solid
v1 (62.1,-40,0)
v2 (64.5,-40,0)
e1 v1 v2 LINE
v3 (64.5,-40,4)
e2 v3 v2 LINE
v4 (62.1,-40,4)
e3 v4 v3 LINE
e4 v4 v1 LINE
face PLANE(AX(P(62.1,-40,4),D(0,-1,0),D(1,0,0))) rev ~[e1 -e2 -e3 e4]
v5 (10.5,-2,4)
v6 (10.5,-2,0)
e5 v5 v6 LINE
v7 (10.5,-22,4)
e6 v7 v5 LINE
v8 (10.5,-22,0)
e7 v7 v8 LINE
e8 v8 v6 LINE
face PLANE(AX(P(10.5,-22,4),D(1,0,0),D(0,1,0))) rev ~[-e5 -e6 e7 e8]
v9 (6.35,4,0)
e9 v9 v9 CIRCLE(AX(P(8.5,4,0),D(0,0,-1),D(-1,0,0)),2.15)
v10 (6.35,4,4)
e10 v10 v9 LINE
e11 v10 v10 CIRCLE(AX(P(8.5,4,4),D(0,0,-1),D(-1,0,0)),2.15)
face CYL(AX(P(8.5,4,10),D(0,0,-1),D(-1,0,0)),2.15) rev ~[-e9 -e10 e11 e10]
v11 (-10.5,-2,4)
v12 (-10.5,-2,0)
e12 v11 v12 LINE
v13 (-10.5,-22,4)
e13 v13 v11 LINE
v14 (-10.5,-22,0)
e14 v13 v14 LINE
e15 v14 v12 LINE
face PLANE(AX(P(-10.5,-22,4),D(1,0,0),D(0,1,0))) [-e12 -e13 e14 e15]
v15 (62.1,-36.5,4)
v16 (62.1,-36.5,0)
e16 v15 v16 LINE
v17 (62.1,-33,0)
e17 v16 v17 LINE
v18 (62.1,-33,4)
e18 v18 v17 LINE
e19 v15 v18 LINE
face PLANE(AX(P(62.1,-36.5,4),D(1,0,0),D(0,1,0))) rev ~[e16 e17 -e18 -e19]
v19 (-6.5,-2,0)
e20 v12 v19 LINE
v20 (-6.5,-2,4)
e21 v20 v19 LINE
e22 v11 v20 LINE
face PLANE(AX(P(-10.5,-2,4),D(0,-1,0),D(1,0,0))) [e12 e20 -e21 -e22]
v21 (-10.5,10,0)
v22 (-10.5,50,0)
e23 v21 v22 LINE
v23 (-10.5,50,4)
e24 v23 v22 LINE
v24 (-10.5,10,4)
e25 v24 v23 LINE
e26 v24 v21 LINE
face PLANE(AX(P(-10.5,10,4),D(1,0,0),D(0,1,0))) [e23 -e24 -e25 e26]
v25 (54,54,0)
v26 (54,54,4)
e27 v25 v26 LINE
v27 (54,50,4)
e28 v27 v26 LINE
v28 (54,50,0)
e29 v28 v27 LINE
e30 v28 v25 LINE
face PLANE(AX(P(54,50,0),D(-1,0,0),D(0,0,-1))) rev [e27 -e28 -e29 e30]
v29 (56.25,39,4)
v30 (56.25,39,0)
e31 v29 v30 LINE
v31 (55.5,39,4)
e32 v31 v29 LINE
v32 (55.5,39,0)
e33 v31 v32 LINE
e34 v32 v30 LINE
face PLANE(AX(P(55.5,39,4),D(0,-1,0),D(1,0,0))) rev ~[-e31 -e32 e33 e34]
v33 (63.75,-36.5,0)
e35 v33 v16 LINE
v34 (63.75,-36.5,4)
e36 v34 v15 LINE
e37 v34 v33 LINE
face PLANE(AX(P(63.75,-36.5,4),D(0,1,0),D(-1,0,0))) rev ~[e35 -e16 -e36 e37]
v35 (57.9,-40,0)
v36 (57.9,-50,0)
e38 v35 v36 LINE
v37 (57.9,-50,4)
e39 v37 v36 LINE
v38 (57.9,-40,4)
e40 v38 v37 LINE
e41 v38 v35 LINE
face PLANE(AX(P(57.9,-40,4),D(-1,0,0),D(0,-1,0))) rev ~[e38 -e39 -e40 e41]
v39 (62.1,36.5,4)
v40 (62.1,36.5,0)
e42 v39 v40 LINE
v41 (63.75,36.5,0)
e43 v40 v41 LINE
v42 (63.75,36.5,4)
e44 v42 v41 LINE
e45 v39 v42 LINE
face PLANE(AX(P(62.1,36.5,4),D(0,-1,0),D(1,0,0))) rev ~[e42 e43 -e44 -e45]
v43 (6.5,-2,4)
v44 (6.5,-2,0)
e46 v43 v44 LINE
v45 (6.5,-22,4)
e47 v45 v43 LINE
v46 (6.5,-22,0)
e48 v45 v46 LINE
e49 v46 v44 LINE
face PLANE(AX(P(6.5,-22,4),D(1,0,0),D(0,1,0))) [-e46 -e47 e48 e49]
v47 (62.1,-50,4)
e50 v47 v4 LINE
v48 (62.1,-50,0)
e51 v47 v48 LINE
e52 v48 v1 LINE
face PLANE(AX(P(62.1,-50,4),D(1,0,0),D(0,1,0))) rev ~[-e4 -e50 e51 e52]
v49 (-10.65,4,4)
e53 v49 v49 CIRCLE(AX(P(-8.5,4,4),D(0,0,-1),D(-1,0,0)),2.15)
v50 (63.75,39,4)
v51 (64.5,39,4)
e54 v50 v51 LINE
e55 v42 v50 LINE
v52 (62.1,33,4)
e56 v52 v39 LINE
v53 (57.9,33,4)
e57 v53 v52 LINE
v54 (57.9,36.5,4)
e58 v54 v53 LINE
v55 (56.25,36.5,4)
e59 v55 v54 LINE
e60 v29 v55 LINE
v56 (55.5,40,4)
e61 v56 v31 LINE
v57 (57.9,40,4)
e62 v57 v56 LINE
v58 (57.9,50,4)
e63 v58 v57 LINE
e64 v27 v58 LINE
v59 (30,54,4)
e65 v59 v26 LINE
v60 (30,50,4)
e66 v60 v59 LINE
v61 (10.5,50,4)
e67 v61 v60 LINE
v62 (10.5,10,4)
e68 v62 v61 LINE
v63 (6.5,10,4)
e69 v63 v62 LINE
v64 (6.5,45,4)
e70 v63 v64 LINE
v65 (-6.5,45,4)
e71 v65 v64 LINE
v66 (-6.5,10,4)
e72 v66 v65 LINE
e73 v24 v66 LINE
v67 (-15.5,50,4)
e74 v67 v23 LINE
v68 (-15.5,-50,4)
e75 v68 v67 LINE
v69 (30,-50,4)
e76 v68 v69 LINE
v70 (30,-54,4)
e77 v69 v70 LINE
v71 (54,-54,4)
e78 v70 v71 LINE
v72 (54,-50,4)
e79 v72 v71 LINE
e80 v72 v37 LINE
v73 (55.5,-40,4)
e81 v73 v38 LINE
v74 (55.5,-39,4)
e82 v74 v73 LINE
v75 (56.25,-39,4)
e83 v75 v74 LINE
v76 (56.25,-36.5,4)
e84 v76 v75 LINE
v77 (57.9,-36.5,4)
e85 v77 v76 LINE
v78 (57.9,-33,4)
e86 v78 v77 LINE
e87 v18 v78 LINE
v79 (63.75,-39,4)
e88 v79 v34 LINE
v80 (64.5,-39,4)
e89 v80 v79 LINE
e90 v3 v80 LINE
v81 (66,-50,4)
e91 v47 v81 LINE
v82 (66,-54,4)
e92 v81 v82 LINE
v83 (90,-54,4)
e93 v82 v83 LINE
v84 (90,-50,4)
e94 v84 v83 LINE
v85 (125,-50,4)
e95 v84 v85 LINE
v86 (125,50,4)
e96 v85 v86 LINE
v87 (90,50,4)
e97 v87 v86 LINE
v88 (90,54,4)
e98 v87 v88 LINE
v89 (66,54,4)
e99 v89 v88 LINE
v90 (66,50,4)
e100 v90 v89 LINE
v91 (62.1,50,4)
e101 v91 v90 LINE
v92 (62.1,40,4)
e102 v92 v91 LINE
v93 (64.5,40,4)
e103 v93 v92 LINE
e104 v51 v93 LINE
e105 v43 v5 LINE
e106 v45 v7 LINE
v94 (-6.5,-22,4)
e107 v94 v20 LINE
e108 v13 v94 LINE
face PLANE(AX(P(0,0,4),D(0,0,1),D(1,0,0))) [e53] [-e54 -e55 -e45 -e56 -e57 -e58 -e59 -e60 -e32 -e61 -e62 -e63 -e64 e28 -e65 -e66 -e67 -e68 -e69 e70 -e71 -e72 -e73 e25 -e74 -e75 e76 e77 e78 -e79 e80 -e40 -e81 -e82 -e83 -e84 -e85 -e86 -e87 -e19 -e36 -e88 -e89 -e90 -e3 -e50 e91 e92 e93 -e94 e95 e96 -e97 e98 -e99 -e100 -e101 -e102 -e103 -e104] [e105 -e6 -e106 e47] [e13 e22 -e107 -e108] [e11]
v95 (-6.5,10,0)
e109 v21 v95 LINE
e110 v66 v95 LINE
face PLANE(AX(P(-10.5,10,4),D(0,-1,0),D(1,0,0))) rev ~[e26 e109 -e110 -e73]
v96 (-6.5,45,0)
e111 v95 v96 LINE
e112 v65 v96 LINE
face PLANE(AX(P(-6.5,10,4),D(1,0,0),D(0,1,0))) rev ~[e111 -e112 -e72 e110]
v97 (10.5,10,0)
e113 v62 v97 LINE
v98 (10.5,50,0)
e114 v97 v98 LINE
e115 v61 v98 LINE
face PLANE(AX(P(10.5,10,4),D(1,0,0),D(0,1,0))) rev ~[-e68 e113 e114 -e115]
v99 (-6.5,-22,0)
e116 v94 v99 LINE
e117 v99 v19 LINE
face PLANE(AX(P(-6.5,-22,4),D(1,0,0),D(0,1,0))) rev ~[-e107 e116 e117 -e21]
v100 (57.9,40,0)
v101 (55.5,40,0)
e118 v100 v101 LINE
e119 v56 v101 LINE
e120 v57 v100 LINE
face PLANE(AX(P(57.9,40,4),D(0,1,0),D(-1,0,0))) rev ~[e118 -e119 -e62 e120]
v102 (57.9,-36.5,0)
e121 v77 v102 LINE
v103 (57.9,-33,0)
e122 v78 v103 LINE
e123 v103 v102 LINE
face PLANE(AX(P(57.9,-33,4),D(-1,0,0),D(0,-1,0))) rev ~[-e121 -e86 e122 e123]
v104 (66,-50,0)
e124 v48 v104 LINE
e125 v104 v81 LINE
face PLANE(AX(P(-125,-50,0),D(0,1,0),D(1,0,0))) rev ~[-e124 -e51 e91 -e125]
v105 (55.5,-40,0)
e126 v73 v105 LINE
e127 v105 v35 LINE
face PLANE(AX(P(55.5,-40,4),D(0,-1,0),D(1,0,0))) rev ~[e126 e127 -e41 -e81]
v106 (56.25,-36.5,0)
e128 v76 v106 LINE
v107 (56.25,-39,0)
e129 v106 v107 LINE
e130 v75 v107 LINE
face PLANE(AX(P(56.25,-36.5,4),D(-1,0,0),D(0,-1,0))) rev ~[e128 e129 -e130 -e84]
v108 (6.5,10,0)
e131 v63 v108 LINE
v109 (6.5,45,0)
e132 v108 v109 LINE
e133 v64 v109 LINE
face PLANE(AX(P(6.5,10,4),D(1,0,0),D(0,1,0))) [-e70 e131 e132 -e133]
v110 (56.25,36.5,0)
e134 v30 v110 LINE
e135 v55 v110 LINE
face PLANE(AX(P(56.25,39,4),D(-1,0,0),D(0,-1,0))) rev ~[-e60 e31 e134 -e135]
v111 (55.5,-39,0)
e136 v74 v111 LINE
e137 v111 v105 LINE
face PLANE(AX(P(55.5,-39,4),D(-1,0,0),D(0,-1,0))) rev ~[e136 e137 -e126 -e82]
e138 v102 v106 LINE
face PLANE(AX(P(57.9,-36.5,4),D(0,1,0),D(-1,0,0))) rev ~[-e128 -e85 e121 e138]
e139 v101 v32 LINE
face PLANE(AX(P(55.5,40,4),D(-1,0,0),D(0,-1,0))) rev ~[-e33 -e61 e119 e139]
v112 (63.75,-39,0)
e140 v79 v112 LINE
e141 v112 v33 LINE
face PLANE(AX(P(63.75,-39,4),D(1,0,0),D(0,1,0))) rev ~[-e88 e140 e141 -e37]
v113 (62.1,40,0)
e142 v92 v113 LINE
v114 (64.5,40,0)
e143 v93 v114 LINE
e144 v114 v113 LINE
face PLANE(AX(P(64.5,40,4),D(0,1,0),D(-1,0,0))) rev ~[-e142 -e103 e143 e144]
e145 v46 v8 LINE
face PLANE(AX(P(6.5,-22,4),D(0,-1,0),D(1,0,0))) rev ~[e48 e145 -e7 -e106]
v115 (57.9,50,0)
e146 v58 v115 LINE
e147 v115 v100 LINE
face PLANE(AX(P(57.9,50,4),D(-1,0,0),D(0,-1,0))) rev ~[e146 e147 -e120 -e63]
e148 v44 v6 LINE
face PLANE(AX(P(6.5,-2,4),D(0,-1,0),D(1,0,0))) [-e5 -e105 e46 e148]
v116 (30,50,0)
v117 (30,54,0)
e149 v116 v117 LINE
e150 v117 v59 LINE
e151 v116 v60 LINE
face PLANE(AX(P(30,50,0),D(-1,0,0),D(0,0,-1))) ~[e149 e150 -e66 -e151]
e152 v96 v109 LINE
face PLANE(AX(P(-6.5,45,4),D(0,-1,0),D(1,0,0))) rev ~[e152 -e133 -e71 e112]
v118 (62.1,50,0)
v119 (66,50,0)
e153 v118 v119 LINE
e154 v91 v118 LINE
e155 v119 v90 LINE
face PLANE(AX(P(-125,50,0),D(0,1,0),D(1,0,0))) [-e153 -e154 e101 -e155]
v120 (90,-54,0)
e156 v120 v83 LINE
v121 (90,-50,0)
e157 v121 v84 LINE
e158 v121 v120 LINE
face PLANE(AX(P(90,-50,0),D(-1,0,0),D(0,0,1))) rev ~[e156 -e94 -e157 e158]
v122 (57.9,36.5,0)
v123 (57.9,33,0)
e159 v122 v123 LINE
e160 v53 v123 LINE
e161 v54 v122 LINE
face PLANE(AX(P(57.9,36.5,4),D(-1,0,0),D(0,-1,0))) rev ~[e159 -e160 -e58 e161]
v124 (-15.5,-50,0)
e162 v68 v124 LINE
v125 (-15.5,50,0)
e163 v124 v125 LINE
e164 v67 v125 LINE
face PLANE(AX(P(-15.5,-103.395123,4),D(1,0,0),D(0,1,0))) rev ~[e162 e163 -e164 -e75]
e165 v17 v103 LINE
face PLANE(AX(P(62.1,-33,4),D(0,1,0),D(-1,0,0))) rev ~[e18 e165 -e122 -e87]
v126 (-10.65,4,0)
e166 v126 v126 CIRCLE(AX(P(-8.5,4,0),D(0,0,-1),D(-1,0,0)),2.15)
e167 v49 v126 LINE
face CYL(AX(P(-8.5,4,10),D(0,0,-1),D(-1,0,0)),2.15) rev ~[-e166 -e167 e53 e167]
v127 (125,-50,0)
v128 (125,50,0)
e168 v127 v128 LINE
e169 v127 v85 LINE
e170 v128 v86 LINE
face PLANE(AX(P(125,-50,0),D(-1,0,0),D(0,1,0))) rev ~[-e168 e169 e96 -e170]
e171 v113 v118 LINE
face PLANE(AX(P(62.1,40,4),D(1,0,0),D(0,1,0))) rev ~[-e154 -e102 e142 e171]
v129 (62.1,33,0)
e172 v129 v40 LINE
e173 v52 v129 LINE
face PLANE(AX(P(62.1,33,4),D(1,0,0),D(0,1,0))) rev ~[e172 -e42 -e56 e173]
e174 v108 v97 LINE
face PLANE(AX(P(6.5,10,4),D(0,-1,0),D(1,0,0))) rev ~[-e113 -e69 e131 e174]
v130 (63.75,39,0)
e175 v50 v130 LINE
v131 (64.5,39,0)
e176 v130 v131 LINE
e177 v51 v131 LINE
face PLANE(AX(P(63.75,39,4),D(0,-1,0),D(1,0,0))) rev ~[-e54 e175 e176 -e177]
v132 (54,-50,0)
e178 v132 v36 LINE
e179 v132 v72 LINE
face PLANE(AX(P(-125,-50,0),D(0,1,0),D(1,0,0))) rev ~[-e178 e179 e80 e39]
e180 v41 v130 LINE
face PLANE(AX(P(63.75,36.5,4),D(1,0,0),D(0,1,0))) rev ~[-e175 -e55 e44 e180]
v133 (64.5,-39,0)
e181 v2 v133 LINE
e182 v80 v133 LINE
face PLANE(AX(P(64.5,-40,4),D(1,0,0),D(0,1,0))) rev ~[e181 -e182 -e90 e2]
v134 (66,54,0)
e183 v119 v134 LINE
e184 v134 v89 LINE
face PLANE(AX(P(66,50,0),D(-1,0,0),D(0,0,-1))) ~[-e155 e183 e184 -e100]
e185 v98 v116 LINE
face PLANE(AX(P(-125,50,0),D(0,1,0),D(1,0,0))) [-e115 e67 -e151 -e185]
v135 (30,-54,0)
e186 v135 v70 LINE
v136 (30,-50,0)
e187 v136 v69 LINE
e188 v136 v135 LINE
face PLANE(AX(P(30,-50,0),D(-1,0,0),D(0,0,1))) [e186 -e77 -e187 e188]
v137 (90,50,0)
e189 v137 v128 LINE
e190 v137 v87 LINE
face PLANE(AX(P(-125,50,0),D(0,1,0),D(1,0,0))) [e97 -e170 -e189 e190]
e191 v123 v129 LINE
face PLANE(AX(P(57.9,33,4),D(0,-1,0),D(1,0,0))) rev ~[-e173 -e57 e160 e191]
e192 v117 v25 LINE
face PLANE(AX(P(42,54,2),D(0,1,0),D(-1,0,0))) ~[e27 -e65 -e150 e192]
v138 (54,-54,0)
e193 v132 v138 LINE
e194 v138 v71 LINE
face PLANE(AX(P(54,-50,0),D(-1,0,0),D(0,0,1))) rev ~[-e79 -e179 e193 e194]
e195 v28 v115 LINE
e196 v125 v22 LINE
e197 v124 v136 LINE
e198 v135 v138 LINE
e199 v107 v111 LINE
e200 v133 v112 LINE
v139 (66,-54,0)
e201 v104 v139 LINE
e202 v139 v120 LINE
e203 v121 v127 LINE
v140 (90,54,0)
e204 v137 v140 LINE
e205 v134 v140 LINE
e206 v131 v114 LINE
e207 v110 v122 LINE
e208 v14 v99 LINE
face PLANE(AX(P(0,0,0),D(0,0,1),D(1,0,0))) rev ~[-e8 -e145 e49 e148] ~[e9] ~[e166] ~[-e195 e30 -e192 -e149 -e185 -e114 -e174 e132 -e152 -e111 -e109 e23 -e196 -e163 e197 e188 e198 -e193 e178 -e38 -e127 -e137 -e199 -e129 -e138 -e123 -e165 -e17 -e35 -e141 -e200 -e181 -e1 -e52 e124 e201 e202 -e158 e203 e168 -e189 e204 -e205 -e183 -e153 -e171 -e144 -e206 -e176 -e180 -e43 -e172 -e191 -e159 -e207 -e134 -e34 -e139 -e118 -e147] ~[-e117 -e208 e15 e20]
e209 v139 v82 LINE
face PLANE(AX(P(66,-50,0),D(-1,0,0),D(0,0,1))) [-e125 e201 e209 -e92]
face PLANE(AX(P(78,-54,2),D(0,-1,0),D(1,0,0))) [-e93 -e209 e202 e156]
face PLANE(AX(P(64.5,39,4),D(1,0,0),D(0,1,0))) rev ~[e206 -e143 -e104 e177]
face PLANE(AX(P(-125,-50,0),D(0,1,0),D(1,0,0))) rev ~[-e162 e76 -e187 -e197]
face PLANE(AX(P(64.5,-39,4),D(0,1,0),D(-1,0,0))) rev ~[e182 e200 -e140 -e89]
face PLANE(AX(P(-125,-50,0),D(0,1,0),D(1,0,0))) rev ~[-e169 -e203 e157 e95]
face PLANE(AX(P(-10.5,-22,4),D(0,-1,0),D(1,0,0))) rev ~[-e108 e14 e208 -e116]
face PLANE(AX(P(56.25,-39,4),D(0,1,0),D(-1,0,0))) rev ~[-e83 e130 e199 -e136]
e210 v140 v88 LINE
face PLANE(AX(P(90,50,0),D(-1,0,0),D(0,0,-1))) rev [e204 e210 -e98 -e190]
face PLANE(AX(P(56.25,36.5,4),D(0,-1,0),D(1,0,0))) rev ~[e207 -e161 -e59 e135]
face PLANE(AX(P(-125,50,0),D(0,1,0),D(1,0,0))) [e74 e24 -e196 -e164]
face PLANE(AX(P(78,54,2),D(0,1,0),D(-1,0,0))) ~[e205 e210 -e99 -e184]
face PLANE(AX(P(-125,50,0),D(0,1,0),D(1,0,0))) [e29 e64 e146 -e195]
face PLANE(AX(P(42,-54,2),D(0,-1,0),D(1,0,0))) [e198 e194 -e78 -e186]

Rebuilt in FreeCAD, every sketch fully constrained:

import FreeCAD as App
import Part
import Sketcher

V = App.Vector
Q = App.Units.Quantity

doc = App.newDocument("Part")
body = doc.addObject("PartDesign::Body", "Body")

sketch1 = body.newObject("Sketcher::SketchObject", "Sketch")
sketch1.AttachmentSupport = (doc.getObject("XY_Plane"), [""])
sketch1.MapMode = "FlatFace"
sketch1.addGeometry([
    Part.LineSegment(V(-125, 50, 0), V(-125, -50, 0)),
    Part.LineSegment(V(-125, -50, 0), V(125, -50, 0)),
    Part.LineSegment(V(125, -50, 0), V(125, 50, 0)),
    Part.LineSegment(V(125, 50, 0), V(-125, 50, 0)),
], False)
sketch1.addConstraint([
    Sketcher.Constraint("Coincident", 0, 2, 1, 1),
    Sketcher.Constraint("Coincident", 1, 2, 2, 1),
    Sketcher.Constraint("Coincident", 2, 2, 3, 1),
    Sketcher.Constraint("Coincident", 3, 2, 0, 1),
    Sketcher.Constraint("Vertical", 0),
    Sketcher.Constraint("Horizontal", 1),
    Sketcher.Constraint("Vertical", 2),
    Sketcher.Constraint("Horizontal", 3),
    Sketcher.Constraint("Symmetric", 0, 2, 2, 2, -1, 1),
    Sketcher.Constraint("DistanceX", 1, 1, 1, 2, Q("250 mm")),
    Sketcher.Constraint("DistanceY", 0, 2, 0, 1, Q("100 mm")),
])
pad1 = body.newObject("PartDesign::Pad", "Pad")
pad1.Profile = sketch1
pad1.Length = 4

sketch2 = body.newObject("Sketcher::SketchObject", "Sketch001")
sketch2.AttachmentSupport = (doc.getObject("XZ_Plane"), [""])
sketch2.MapMode = "FlatFace"
sketch2.AttachmentOffset = App.Placement(V(0, 0, 50), App.Rotation())
sketch2.addGeometry([
    Part.LineSegment(V(-90, 4, 0), V(-90, 0, 0)),
    Part.LineSegment(V(-90, 0, 0), V(-66, 0, 0)),
    Part.LineSegment(V(-66, 0, 0), V(-66, 4, 0)),
    Part.LineSegment(V(-66, 4, 0), V(-90, 4, 0)),
    Part.LineSegment(V(-54, 4, 0), V(-54, 0, 0)),
    Part.LineSegment(V(-54, 0, 0), V(-30, 0, 0)),
    Part.LineSegment(V(-30, 0, 0), V(-30, 4, 0)),
    Part.LineSegment(V(-30, 4, 0), V(-54, 4, 0)),
    Part.LineSegment(V(30, 4, 0), V(30, 0, 0)),
    Part.LineSegment(V(30, 0, 0), V(54, 0, 0)),
    Part.LineSegment(V(54, 0, 0), V(54, 4, 0)),
    Part.LineSegment(V(54, 4, 0), V(30, 4, 0)),
    Part.LineSegment(V(66, 4, 0), V(66, 0, 0)),
    Part.LineSegment(V(66, 0, 0), V(90, 0, 0)),
    Part.LineSegment(V(90, 0, 0), V(90, 4, 0)),
    Part.LineSegment(V(90, 4, 0), V(66, 4, 0)),
], False)
sketch2.addConstraint([
    Sketcher.Constraint("Coincident", 0, 2, 1, 1),
    Sketcher.Constraint("Coincident", 1, 2, 2, 1),
    Sketcher.Constraint("Coincident", 2, 2, 3, 1),
    Sketcher.Constraint("Coincident", 3, 2, 0, 1),
    Sketcher.Constraint("Coincident", 4, 2, 5, 1),
    Sketcher.Constraint("Coincident", 5, 2, 6, 1),
    Sketcher.Constraint("Coincident", 6, 2, 7, 1),
    Sketcher.Constraint("Coincident", 7, 2, 4, 1),
    Sketcher.Constraint("Coincident", 8, 2, 9, 1),
    Sketcher.Constraint("Coincident", 9, 2, 10, 1),
    Sketcher.Constraint("Coincident", 10, 2, 11, 1),
    Sketcher.Constraint("Coincident", 11, 2, 8, 1),
    Sketcher.Constraint("Coincident", 12, 2, 13, 1),
    Sketcher.Constraint("Coincident", 13, 2, 14, 1),
    Sketcher.Constraint("Coincident", 14, 2, 15, 1),
    Sketcher.Constraint("Coincident", 15, 2, 12, 1),
    Sketcher.Constraint("Vertical", 0),
    Sketcher.Constraint("Horizontal", 1),
    Sketcher.Constraint("Vertical", 2),
    Sketcher.Constraint("Horizontal", 3),
    Sketcher.Constraint("Vertical", 4),
    Sketcher.Constraint("Horizontal", 5),
    Sketcher.Constraint("Vertical", 6),
    Sketcher.Constraint("Horizontal", 7),
    Sketcher.Constraint("Vertical", 8),
    Sketcher.Constraint("Horizontal", 9),
    Sketcher.Constraint("Vertical", 10),
    Sketcher.Constraint("Horizontal", 11),
    Sketcher.Constraint("Vertical", 12),
    Sketcher.Constraint("Horizontal", 13),
    Sketcher.Constraint("Vertical", 14),
    Sketcher.Constraint("Horizontal", 15),
    Sketcher.Constraint("Symmetric", 5, 2, 8, 2, -1, 1),
    Sketcher.Constraint("Symmetric", 1, 2, 12, 2, -1, 1),
    Sketcher.Constraint("Symmetric", 4, 2, 9, 2, -2),
    Sketcher.Constraint("Symmetric", 0, 2, 13, 2, -2),
    Sketcher.Constraint("Horizontal", 3, 2, 6, 2),
    Sketcher.Constraint("Horizontal", 7, 2, 10, 2),
    Sketcher.Constraint("Horizontal", 11, 2, 14, 2),
    Sketcher.Constraint("Equal", 3, 5),
    Sketcher.Constraint("DistanceX", 1, 1, 1, 2, Q("24 mm")),
    Sketcher.Constraint("DistanceY", 0, 2, 0, 1, Q("4 mm")),
    Sketcher.Constraint("DistanceX", 0, 2, -1, 1, Q("90 mm")),
    Sketcher.Constraint("DistanceX", 4, 2, -1, 1, Q("54 mm")),
])
pad2 = body.newObject("PartDesign::Pad", "Pad001")
pad2.Profile = sketch2
pad2.Length = 4

sketch3 = body.newObject("Sketcher::SketchObject", "Sketch002")
sketch3.AttachmentSupport = (doc.getObject("XY_Plane"), [""])
sketch3.MapMode = "FlatFace"
sketch3.AttachmentOffset = App.Placement(V(0, 0, 4), App.Rotation())
sketch3.addGeometry([
    Part.LineSegment(V(-10.5, 50, 0), V(-10.5, 10, 0)),
    Part.LineSegment(V(-10.5, 10, 0), V(-6.5, 10, 0)),
    Part.LineSegment(V(-6.5, 10, 0), V(-6.5, 50, 0)),
    Part.LineSegment(V(-6.5, 50, 0), V(-10.5, 50, 0)),
    Part.LineSegment(V(-10.5, -2, 0), V(-10.5, -22, 0)),
    Part.LineSegment(V(-10.5, -22, 0), V(-6.5, -22, 0)),
    Part.LineSegment(V(-6.5, -22, 0), V(-6.5, -2, 0)),
    Part.LineSegment(V(-6.5, -2, 0), V(-10.5, -2, 0)),
    Part.LineSegment(V(6.5, -2, 0), V(6.5, -22, 0)),
    Part.LineSegment(V(6.5, -22, 0), V(10.5, -22, 0)),
    Part.LineSegment(V(10.5, -22, 0), V(10.5, -2, 0)),
    Part.LineSegment(V(10.5, -2, 0), V(6.5, -2, 0)),
    Part.LineSegment(V(6.5, 50, 0), V(6.5, 10, 0)),
    Part.LineSegment(V(6.5, 10, 0), V(10.5, 10, 0)),
    Part.LineSegment(V(10.5, 10, 0), V(10.5, 50, 0)),
    Part.LineSegment(V(10.5, 50, 0), V(6.5, 50, 0)),
], False)
sketch3.addConstraint([
    Sketcher.Constraint("Coincident", 0, 2, 1, 1),
    Sketcher.Constraint("Coincident", 1, 2, 2, 1),
    Sketcher.Constraint("Coincident", 2, 2, 3, 1),
    Sketcher.Constraint("Coincident", 3, 2, 0, 1),
    Sketcher.Constraint("Coincident", 4, 2, 5, 1),
    Sketcher.Constraint("Coincident", 5, 2, 6, 1),
    Sketcher.Constraint("Coincident", 6, 2, 7, 1),
    Sketcher.Constraint("Coincident", 7, 2, 4, 1),
    Sketcher.Constraint("Coincident", 8, 2, 9, 1),
    Sketcher.Constraint("Coincident", 9, 2, 10, 1),
    Sketcher.Constraint("Coincident", 10, 2, 11, 1),
    Sketcher.Constraint("Coincident", 11, 2, 8, 1),
    Sketcher.Constraint("Coincident", 12, 2, 13, 1),
    Sketcher.Constraint("Coincident", 13, 2, 14, 1),
    Sketcher.Constraint("Coincident", 14, 2, 15, 1),
    Sketcher.Constraint("Coincident", 15, 2, 12, 1),
    Sketcher.Constraint("Vertical", 0),
    Sketcher.Constraint("Horizontal", 1),
    Sketcher.Constraint("Vertical", 2),
    Sketcher.Constraint("Horizontal", 3),
    Sketcher.Constraint("Vertical", 4),
    Sketcher.Constraint("Horizontal", 5),
    Sketcher.Constraint("Vertical", 6),
    Sketcher.Constraint("Horizontal", 7),
    Sketcher.Constraint("Vertical", 8),
    Sketcher.Constraint("Horizontal", 9),
    Sketcher.Constraint("Vertical", 10),
    Sketcher.Constraint("Horizontal", 11),
    Sketcher.Constraint("Vertical", 12),
    Sketcher.Constraint("Horizontal", 13),
    Sketcher.Constraint("Vertical", 14),
    Sketcher.Constraint("Horizontal", 15),
    Sketcher.Constraint("Symmetric", 5, 2, 8, 2, -2),
    Sketcher.Constraint("Symmetric", 7, 2, 10, 2, -2),
    Sketcher.Constraint("Symmetric", 1, 2, 12, 2, -2),
    Sketcher.Constraint("Symmetric", 3, 2, 14, 2, -2),
    Sketcher.Constraint("Vertical", 3, 2, 4, 2),
    Sketcher.Constraint("Vertical", 2, 2, 5, 2),
    Sketcher.Constraint("DistanceX", 1, 1, 1, 2, Q("4 mm")),
    Sketcher.Constraint("DistanceY", 0, 2, 0, 1, Q("40 mm")),
    Sketcher.Constraint("DistanceY", 4, 2, 4, 1, Q("20 mm")),
    Sketcher.Constraint("DistanceY", -1, 1, 0, 2, Q("10 mm")),
    Sketcher.Constraint("DistanceY", 4, 2, -1, 1, Q("22 mm")),
    Sketcher.Constraint("DistanceX", 5, 2, 8, 2, Q("13 mm")),
])
pocket1 = body.newObject("PartDesign::Pocket", "Pocket")
pocket1.Profile = sketch3
pocket1.Type = "ThroughAll"
doc.recompute()

mirrored = body.newObject("PartDesign::Mirrored", "Mirrored")
mirrored.Originals = [pad2]
mirrored.MirrorPlane = (doc.getObject("XZ_Plane"), [""])
body.Tip = mirrored

sketch4 = body.newObject("Sketcher::SketchObject", "Sketch003")
sketch4.AttachmentSupport = (doc.getObject("XY_Plane"), [""])
sketch4.MapMode = "FlatFace"
sketch4.AttachmentOffset = App.Placement(V(0, 0, 4), App.Rotation())
sketch4.addGeometry([
    Part.Circle(V(-8.5, 4, 0), V(0, 0, 1), 2.1),
    Part.Circle(V(8.5, 4, 0), V(0, 0, 1), 2.1),
], False)
sketch4.addConstraint([
    Sketcher.Constraint("Equal", 0, 1),
    Sketcher.Constraint("Symmetric", 0, 3, 1, 3, -2),
    Sketcher.Constraint("Diameter", 0, Q("4.3 mm")),
    Sketcher.Constraint("DistanceY", -1, 1, 0, 3, Q("4 mm")),
    Sketcher.Constraint("DistanceX", 0, 3, 1, 3, Q("17 mm")),
])
doc.recompute()
hole = body.newObject("PartDesign::Hole", "Hole")
hole.Profile = sketch4
hole.ThreadType = "None"
hole.Diameter = 4.3
hole.DepthType = "Dimension"
hole.Depth = 6
hole.DrillPoint = "Angled"
hole.DrillPointAngle = 118

sketch5 = body.newObject("Sketcher::SketchObject", "Sketch004")
sketch5.AttachmentSupport = (doc.getObject("XY_Plane"), [""])
sketch5.MapMode = "FlatFace"
sketch5.AttachmentOffset = App.Placement(V(0, 0, 4), App.Rotation())
sketch5.addGeometry([
    Part.LineSegment(V(-62.1, -50, 0), V(-57.9, -50, 0)),
    Part.LineSegment(V(-57.9, -50, 0), V(-57.9, -40, 0)),
    Part.LineSegment(V(-57.9, -40, 0), V(-55.5, -40, 0)),
    Part.LineSegment(V(-55.5, -40, 0), V(-55.5, -39, 0)),
    Part.LineSegment(V(-55.5, -39, 0), V(-56.2, -39, 0)),
    Part.LineSegment(V(-56.2, -39, 0), V(-56.2, -36.5, 0)),
    Part.LineSegment(V(-56.2, -36.5, 0), V(-57.9, -36.5, 0)),
    Part.LineSegment(V(-57.9, -36.5, 0), V(-57.9, -33, 0)),
    Part.LineSegment(V(-57.9, -33, 0), V(-62.1, -33, 0)),
    Part.LineSegment(V(-62.1, -33, 0), V(-62.1, -36.5, 0)),
    Part.LineSegment(V(-62.1, -36.5, 0), V(-63.8, -36.5, 0)),
    Part.LineSegment(V(-63.8, -36.5, 0), V(-63.8, -39, 0)),
    Part.LineSegment(V(-63.8, -39, 0), V(-64.5, -39, 0)),
    Part.LineSegment(V(-64.5, -39, 0), V(-64.5, -40, 0)),
    Part.LineSegment(V(-64.5, -40, 0), V(-62.1, -40, 0)),
    Part.LineSegment(V(-62.1, -40, 0), V(-62.1, -50, 0)),
    Part.LineSegment(V(57.9, -40, 0), V(57.9, -50, 0)),
    Part.LineSegment(V(57.9, -50, 0), V(62.1, -50, 0)),
    Part.LineSegment(V(62.1, -50, 0), V(62.1, -40, 0)),
    Part.LineSegment(V(62.1, -40, 0), V(64.5, -40, 0)),
    Part.LineSegment(V(64.5, -40, 0), V(64.5, -39, 0)),
    Part.LineSegment(V(64.5, -39, 0), V(63.8, -39, 0)),
    Part.LineSegment(V(63.8, -39, 0), V(63.8, -36.5, 0)),
    Part.LineSegment(V(63.8, -36.5, 0), V(62.1, -36.5, 0)),
    Part.LineSegment(V(62.1, -36.5, 0), V(62.1, -33, 0)),
    Part.LineSegment(V(62.1, -33, 0), V(57.9, -33, 0)),
    Part.LineSegment(V(57.9, -33, 0), V(57.9, -36.5, 0)),
    Part.LineSegment(V(57.9, -36.5, 0), V(56.2, -36.5, 0)),
    Part.LineSegment(V(56.2, -36.5, 0), V(56.2, -39, 0)),
    Part.LineSegment(V(56.2, -39, 0), V(55.5, -39, 0)),
    Part.LineSegment(V(55.5, -39, 0), V(55.5, -40, 0)),
    Part.LineSegment(V(55.5, -40, 0), V(57.9, -40, 0)),
    Part.LineSegment(V(62.1, 40, 0), V(62.1, 50, 0)),
    Part.LineSegment(V(62.1, 50, 0), V(57.9, 50, 0)),
    Part.LineSegment(V(57.9, 50, 0), V(57.9, 40, 0)),
    Part.LineSegment(V(57.9, 40, 0), V(55.5, 40, 0)),
    Part.LineSegment(V(55.5, 40, 0), V(55.5, 39, 0)),
    Part.LineSegment(V(55.5, 39, 0), V(56.2, 39, 0)),
    Part.LineSegment(V(56.2, 39, 0), V(56.2, 36.5, 0)),
    Part.LineSegment(V(56.2, 36.5, 0), V(57.9, 36.5, 0)),
    Part.LineSegment(V(57.9, 36.5, 0), V(57.9, 33, 0)),
    Part.LineSegment(V(57.9, 33, 0), V(62.1, 33, 0)),
    Part.LineSegment(V(62.1, 33, 0), V(62.1, 36.5, 0)),
    Part.LineSegment(V(62.1, 36.5, 0), V(63.8, 36.5, 0)),
    Part.LineSegment(V(63.8, 36.5, 0), V(63.8, 39, 0)),
    Part.LineSegment(V(63.8, 39, 0), V(64.5, 39, 0)),
    Part.LineSegment(V(64.5, 39, 0), V(64.5, 40, 0)),
    Part.LineSegment(V(64.5, 40, 0), V(62.1, 40, 0)),
    Part.LineSegment(V(-57.9, 50, 0), V(-62.1, 50, 0)),
    Part.LineSegment(V(-62.1, 50, 0), V(-62.1, 40, 0)),
    Part.LineSegment(V(-62.1, 40, 0), V(-64.5, 40, 0)),
    Part.LineSegment(V(-64.5, 40, 0), V(-64.5, 39, 0)),
    Part.LineSegment(V(-64.5, 39, 0), V(-63.8, 39, 0)),
    Part.LineSegment(V(-63.8, 39, 0), V(-63.8, 36.5, 0)),
    Part.LineSegment(V(-63.8, 36.5, 0), V(-62.1, 36.5, 0)),
    Part.LineSegment(V(-62.1, 36.5, 0), V(-62.1, 33, 0)),
    Part.LineSegment(V(-62.1, 33, 0), V(-57.9, 33, 0)),
    Part.LineSegment(V(-57.9, 33, 0), V(-57.9, 36.5, 0)),
    Part.LineSegment(V(-57.9, 36.5, 0), V(-56.2, 36.5, 0)),
    Part.LineSegment(V(-56.2, 36.5, 0), V(-56.2, 39, 0)),
    Part.LineSegment(V(-56.2, 39, 0), V(-55.5, 39, 0)),
    Part.LineSegment(V(-55.5, 39, 0), V(-55.5, 40, 0)),
    Part.LineSegment(V(-55.5, 40, 0), V(-57.9, 40, 0)),
    Part.LineSegment(V(-57.9, 40, 0), V(-57.9, 50, 0)),
], False)
sketch5.addConstraint([
    Sketcher.Constraint("Coincident", 0, 2, 1, 1),
    Sketcher.Constraint("Coincident", 1, 2, 2, 1),
    Sketcher.Constraint("Coincident", 2, 2, 3, 1),
    Sketcher.Constraint("Coincident", 3, 2, 4, 1),
    Sketcher.Constraint("Coincident", 4, 2, 5, 1),
    Sketcher.Constraint("Coincident", 5, 2, 6, 1),
    Sketcher.Constraint("Coincident", 6, 2, 7, 1),
    Sketcher.Constraint("Coincident", 7, 2, 8, 1),
    Sketcher.Constraint("Coincident", 8, 2, 9, 1),
    Sketcher.Constraint("Coincident", 9, 2, 10, 1),
    Sketcher.Constraint("Coincident", 10, 2, 11, 1),
    Sketcher.Constraint("Coincident", 11, 2, 12, 1),
    Sketcher.Constraint("Coincident", 12, 2, 13, 1),
    Sketcher.Constraint("Coincident", 13, 2, 14, 1),
    Sketcher.Constraint("Coincident", 14, 2, 15, 1),
    Sketcher.Constraint("Coincident", 15, 2, 0, 1),
    Sketcher.Constraint("Coincident", 16, 2, 17, 1),
    Sketcher.Constraint("Coincident", 17, 2, 18, 1),
    Sketcher.Constraint("Coincident", 18, 2, 19, 1),
    Sketcher.Constraint("Coincident", 19, 2, 20, 1),
    Sketcher.Constraint("Coincident", 20, 2, 21, 1),
    Sketcher.Constraint("Coincident", 21, 2, 22, 1),
    Sketcher.Constraint("Coincident", 22, 2, 23, 1),
    Sketcher.Constraint("Coincident", 23, 2, 24, 1),
    Sketcher.Constraint("Coincident", 24, 2, 25, 1),
    Sketcher.Constraint("Coincident", 25, 2, 26, 1),
    Sketcher.Constraint("Coincident", 26, 2, 27, 1),
    Sketcher.Constraint("Coincident", 27, 2, 28, 1),
    Sketcher.Constraint("Coincident", 28, 2, 29, 1),
    Sketcher.Constraint("Coincident", 29, 2, 30, 1),
    Sketcher.Constraint("Coincident", 30, 2, 31, 1),
    Sketcher.Constraint("Coincident", 31, 2, 16, 1),
    Sketcher.Constraint("Coincident", 32, 2, 33, 1),
    Sketcher.Constraint("Coincident", 33, 2, 34, 1),
    Sketcher.Constraint("Coincident", 34, 2, 35, 1),
    Sketcher.Constraint("Coincident", 35, 2, 36, 1),
    Sketcher.Constraint("Coincident", 36, 2, 37, 1),
    Sketcher.Constraint("Coincident", 37, 2, 38, 1),
    Sketcher.Constraint("Coincident", 38, 2, 39, 1),
    Sketcher.Constraint("Coincident", 39, 2, 40, 1),
    Sketcher.Constraint("Coincident", 40, 2, 41, 1),
    Sketcher.Constraint("Coincident", 41, 2, 42, 1),
    Sketcher.Constraint("Coincident", 42, 2, 43, 1),
    Sketcher.Constraint("Coincident", 43, 2, 44, 1),
    Sketcher.Constraint("Coincident", 44, 2, 45, 1),
    Sketcher.Constraint("Coincident", 45, 2, 46, 1),
    Sketcher.Constraint("Coincident", 46, 2, 47, 1),
    Sketcher.Constraint("Coincident", 47, 2, 32, 1),
    Sketcher.Constraint("Coincident", 48, 2, 49, 1),
    Sketcher.Constraint("Coincident", 49, 2, 50, 1),
    Sketcher.Constraint("Coincident", 50, 2, 51, 1),
    Sketcher.Constraint("Coincident", 51, 2, 52, 1),
    Sketcher.Constraint("Coincident", 52, 2, 53, 1),
    Sketcher.Constraint("Coincident", 53, 2, 54, 1),
    Sketcher.Constraint("Coincident", 54, 2, 55, 1),
    Sketcher.Constraint("Coincident", 55, 2, 56, 1),
    Sketcher.Constraint("Coincident", 56, 2, 57, 1),
    Sketcher.Constraint("Coincident", 57, 2, 58, 1),
    Sketcher.Constraint("Coincident", 58, 2, 59, 1),
    Sketcher.Constraint("Coincident", 59, 2, 60, 1),
    Sketcher.Constraint("Coincident", 60, 2, 61, 1),
    Sketcher.Constraint("Coincident", 61, 2, 62, 1),
    Sketcher.Constraint("Coincident", 62, 2, 63, 1),
    Sketcher.Constraint("Coincident", 63, 2, 48, 1),
    Sketcher.Constraint("Horizontal", 0),
    Sketcher.Constraint("Vertical", 1),
    Sketcher.Constraint("Horizontal", 2),
    Sketcher.Constraint("Vertical", 3),
    Sketcher.Constraint("Horizontal", 4),
    Sketcher.Constraint("Vertical", 5),
    Sketcher.Constraint("Horizontal", 6),
    Sketcher.Constraint("Vertical", 7),
    Sketcher.Constraint("Horizontal", 8),
    Sketcher.Constraint("Vertical", 9),
    Sketcher.Constraint("Horizontal", 10),
    Sketcher.Constraint("Vertical", 11),
    Sketcher.Constraint("Horizontal", 12),
    Sketcher.Constraint("Vertical", 13),
    Sketcher.Constraint("Horizontal", 14),
    Sketcher.Constraint("Vertical", 15),
    Sketcher.Constraint("Vertical", 16),
    Sketcher.Constraint("Horizontal", 17),
    Sketcher.Constraint("Vertical", 18),
    Sketcher.Constraint("Horizontal", 19),
    Sketcher.Constraint("Vertical", 20),
    Sketcher.Constraint("Horizontal", 21),
    Sketcher.Constraint("Vertical", 22),
    Sketcher.Constraint("Horizontal", 23),
    Sketcher.Constraint("Vertical", 24),
    Sketcher.Constraint("Horizontal", 25),
    Sketcher.Constraint("Vertical", 26),
    Sketcher.Constraint("Horizontal", 27),
    Sketcher.Constraint("Vertical", 28),
    Sketcher.Constraint("Horizontal", 29),
    Sketcher.Constraint("Vertical", 30),
    Sketcher.Constraint("Horizontal", 31),
    Sketcher.Constraint("Vertical", 32),
    Sketcher.Constraint("Horizontal", 33),
    Sketcher.Constraint("Vertical", 34),
    Sketcher.Constraint("Horizontal", 35),
    Sketcher.Constraint("Vertical", 36),
    Sketcher.Constraint("Horizontal", 37),
    Sketcher.Constraint("Vertical", 38),
    Sketcher.Constraint("Horizontal", 39),
    Sketcher.Constraint("Vertical", 40),
    Sketcher.Constraint("Horizontal", 41),
    Sketcher.Constraint("Vertical", 42),
    Sketcher.Constraint("Horizontal", 43),
    Sketcher.Constraint("Vertical", 44),
    Sketcher.Constraint("Horizontal", 45),
    Sketcher.Constraint("Vertical", 46),
    Sketcher.Constraint("Horizontal", 47),
    Sketcher.Constraint("Horizontal", 48),
    Sketcher.Constraint("Vertical", 49),
    Sketcher.Constraint("Horizontal", 50),
    Sketcher.Constraint("Vertical", 51),
    Sketcher.Constraint("Horizontal", 52),
    Sketcher.Constraint("Vertical", 53),
    Sketcher.Constraint("Horizontal", 54),
    Sketcher.Constraint("Vertical", 55),
    Sketcher.Constraint("Horizontal", 56),
    Sketcher.Constraint("Vertical", 57),
    Sketcher.Constraint("Horizontal", 58),
    Sketcher.Constraint("Vertical", 59),
    Sketcher.Constraint("Horizontal", 60),
    Sketcher.Constraint("Vertical", 61),
    Sketcher.Constraint("Horizontal", 62),
    Sketcher.Constraint("Vertical", 63),
    Sketcher.Constraint("Symmetric", 15, 2, 32, 2, -1, 1),
    Sketcher.Constraint("Symmetric", 1, 2, 34, 2, -1, 1),
    Sketcher.Constraint("Symmetric", 3, 2, 36, 2, -1, 1),
    Sketcher.Constraint("Symmetric", 5, 2, 38, 2, -1, 1),
    Sketcher.Constraint("Symmetric", 7, 2, 40, 2, -1, 1),
    Sketcher.Constraint("Symmetric", 9, 2, 42, 2, -1, 1),
    Sketcher.Constraint("Symmetric", 11, 2, 44, 2, -1, 1),
    Sketcher.Constraint("Symmetric", 13, 2, 46, 2, -1, 1),
    Sketcher.Constraint("Symmetric", 17, 2, 48, 2, -1, 1),
    Sketcher.Constraint("Symmetric", 19, 2, 50, 2, -1, 1),
    Sketcher.Constraint("Symmetric", 21, 2, 52, 2, -1, 1),
    Sketcher.Constraint("Symmetric", 23, 2, 54, 2, -1, 1),
    Sketcher.Constraint("Symmetric", 25, 2, 56, 2, -1, 1),
    Sketcher.Constraint("Symmetric", 27, 2, 58, 2, -1, 1),
    Sketcher.Constraint("Symmetric", 29, 2, 60, 2, -1, 1),
    Sketcher.Constraint("Symmetric", 31, 2, 62, 2, -1, 1),
    Sketcher.Constraint("Symmetric", 0, 2, 16, 2, -2),
    Sketcher.Constraint("Symmetric", 14, 2, 18, 2, -2),
    Sketcher.Constraint("Symmetric", 12, 2, 20, 2, -2),
    Sketcher.Constraint("Symmetric", 10, 2, 22, 2, -2),
    Sketcher.Constraint("Symmetric", 8, 2, 24, 2, -2),
    Sketcher.Constraint("Symmetric", 6, 2, 26, 2, -2),
    Sketcher.Constraint("Symmetric", 4, 2, 28, 2, -2),
    Sketcher.Constraint("Symmetric", 2, 2, 30, 2, -2),
    Sketcher.Constraint("Horizontal", 6, 2, 9, 2),
    Sketcher.Constraint("Horizontal", 4, 2, 11, 2),
    Sketcher.Constraint("Horizontal", 2, 2, 13, 2),
    Sketcher.Constraint("Vertical", 1, 2, 6, 2),
    Sketcher.Constraint("Vertical", 9, 2, 14, 2),
    Sketcher.Constraint("Equal", 6, 10),
    Sketcher.Constraint("Equal", 4, 12),
    Sketcher.Constraint("DistanceY", 1, 1, 1, 2, Q("10 mm")),
    Sketcher.Constraint("DistanceY", 3, 1, 3, 2, Q("1 mm")),
    Sketcher.Constraint("DistanceX", 0, 1, 0, 2, Q("4.2 mm")),
    Sketcher.Constraint("DistanceX", 2, 1, 2, 2, Q("2.4 mm")),
    Sketcher.Constraint("DistanceY", 5, 1, 5, 2, Q("2.5 mm")),
    Sketcher.Constraint("DistanceY", 7, 1, 7, 2, Q("3.5 mm")),
    Sketcher.Constraint("DistanceY", 0, 2, -1, 1, Q("50 mm")),
    Sketcher.Constraint("DistanceX", 4, 2, 4, 1, Q("0.75 mm")),
    Sketcher.Constraint("DistanceX", 0, 2, -1, 1, Q("57.9 mm")),
])
pocket2 = body.newObject("PartDesign::Pocket", "Pocket001")
pocket2.Profile = sketch5
pocket2.Length = 10

sketch6 = body.newObject("Sketcher::SketchObject", "Sketch005")
sketch6.AttachmentSupport = (doc.getObject("XY_Plane"), [""])
sketch6.MapMode = "FlatFace"
sketch6.AttachmentOffset = App.Placement(V(0, 0, 4), App.Rotation())
sketch6.addGeometry([
    Part.LineSegment(V(-6, 50, 0), V(-6, 45, 0)),
    Part.LineSegment(V(-6, 45, 0), V(6, 45, 0)),
    Part.LineSegment(V(6, 45, 0), V(6, 50, 0)),
    Part.LineSegment(V(6, 50, 0), V(-6, 50, 0)),
], False)
sketch6.addConstraint([
    Sketcher.Constraint("Coincident", 0, 2, 1, 1),
    Sketcher.Constraint("Coincident", 1, 2, 2, 1),
    Sketcher.Constraint("Coincident", 2, 2, 3, 1),
    Sketcher.Constraint("Coincident", 3, 2, 0, 1),
    Sketcher.Constraint("Vertical", 0),
    Sketcher.Constraint("Horizontal", 1),
    Sketcher.Constraint("Vertical", 2),
    Sketcher.Constraint("Horizontal", 3),
    Sketcher.Constraint("DistanceX", 1, 1, 1, 2, Q("13 mm")),
    Sketcher.Constraint("DistanceY", 0, 2, 0, 1, Q("5 mm")),
    Sketcher.Constraint("DistanceY", -1, 1, 0, 2, Q("45 mm")),
    Sketcher.Constraint("DistanceX", 0, 2, -1, 1, Q("6.5 mm")),
])
pocket3 = body.newObject("PartDesign::Pocket", "Pocket002")
pocket3.Profile = sketch6
pocket3.Length = 10

sketch7 = body.newObject("Sketcher::SketchObject", "Sketch006")
sketch7.AttachmentSupport = (doc.getObject("XY_Plane"), [""])
sketch7.MapMode = "FlatFace"
sketch7.AttachmentOffset = App.Placement(V(0, 0, 4), App.Rotation())
sketch7.addGeometry([
    Part.LineSegment(V(-16, 50, 0), V(-33, 263, 0)),
    Part.LineSegment(V(-33, 263, 0), V(-162, 81, 0)),
    Part.LineSegment(V(-162, 81, 0), V(-172, -88, 0)),
    Part.LineSegment(V(-172, -88, 0), V(-16, -103, 0)),
    Part.LineSegment(V(-16, -103, 0), V(-16, 50, 0)),
], False)
sketch7.addConstraint([
    Sketcher.Constraint("Coincident", 0, 2, 1, 1),
    Sketcher.Constraint("Coincident", 1, 2, 2, 1),
    Sketcher.Constraint("Coincident", 2, 2, 3, 1),
    Sketcher.Constraint("Coincident", 3, 2, 4, 1),
    Sketcher.Constraint("Coincident", 4, 2, 0, 1),
    Sketcher.Constraint("Vertical", 4),
    Sketcher.Constraint("DistanceY", -1, 1, 4, 2, Q("50 mm")),
    Sketcher.Constraint("DistanceX", 3, 2, -1, 1, Q("15.5 mm")),
    Sketcher.Constraint("Distance", 0, Q("213.392402 mm")),
    Sketcher.Constraint("DistanceX", 0, 2, -1, 1, Q("32.700401 mm")),
    Sketcher.Constraint("Distance", 2, Q("169.567941 mm")),
    Sketcher.Constraint("DistanceY", 4, 1, 4, 2, Q("153.395123 mm")),
    Sketcher.Constraint("DistanceX", 2, 2, -1, 1, Q("171.99944 mm")),
    Sketcher.Constraint("DistanceY", 2, 2, -1, 1, Q("88.149719 mm")),
    Sketcher.Constraint("Distance", 1, Q("222.820478 mm")),
])
pocket4 = body.newObject("PartDesign::Pocket", "Pocket003")
pocket4.Profile = sketch7
pocket4.Length = 10

doc.recompute()
